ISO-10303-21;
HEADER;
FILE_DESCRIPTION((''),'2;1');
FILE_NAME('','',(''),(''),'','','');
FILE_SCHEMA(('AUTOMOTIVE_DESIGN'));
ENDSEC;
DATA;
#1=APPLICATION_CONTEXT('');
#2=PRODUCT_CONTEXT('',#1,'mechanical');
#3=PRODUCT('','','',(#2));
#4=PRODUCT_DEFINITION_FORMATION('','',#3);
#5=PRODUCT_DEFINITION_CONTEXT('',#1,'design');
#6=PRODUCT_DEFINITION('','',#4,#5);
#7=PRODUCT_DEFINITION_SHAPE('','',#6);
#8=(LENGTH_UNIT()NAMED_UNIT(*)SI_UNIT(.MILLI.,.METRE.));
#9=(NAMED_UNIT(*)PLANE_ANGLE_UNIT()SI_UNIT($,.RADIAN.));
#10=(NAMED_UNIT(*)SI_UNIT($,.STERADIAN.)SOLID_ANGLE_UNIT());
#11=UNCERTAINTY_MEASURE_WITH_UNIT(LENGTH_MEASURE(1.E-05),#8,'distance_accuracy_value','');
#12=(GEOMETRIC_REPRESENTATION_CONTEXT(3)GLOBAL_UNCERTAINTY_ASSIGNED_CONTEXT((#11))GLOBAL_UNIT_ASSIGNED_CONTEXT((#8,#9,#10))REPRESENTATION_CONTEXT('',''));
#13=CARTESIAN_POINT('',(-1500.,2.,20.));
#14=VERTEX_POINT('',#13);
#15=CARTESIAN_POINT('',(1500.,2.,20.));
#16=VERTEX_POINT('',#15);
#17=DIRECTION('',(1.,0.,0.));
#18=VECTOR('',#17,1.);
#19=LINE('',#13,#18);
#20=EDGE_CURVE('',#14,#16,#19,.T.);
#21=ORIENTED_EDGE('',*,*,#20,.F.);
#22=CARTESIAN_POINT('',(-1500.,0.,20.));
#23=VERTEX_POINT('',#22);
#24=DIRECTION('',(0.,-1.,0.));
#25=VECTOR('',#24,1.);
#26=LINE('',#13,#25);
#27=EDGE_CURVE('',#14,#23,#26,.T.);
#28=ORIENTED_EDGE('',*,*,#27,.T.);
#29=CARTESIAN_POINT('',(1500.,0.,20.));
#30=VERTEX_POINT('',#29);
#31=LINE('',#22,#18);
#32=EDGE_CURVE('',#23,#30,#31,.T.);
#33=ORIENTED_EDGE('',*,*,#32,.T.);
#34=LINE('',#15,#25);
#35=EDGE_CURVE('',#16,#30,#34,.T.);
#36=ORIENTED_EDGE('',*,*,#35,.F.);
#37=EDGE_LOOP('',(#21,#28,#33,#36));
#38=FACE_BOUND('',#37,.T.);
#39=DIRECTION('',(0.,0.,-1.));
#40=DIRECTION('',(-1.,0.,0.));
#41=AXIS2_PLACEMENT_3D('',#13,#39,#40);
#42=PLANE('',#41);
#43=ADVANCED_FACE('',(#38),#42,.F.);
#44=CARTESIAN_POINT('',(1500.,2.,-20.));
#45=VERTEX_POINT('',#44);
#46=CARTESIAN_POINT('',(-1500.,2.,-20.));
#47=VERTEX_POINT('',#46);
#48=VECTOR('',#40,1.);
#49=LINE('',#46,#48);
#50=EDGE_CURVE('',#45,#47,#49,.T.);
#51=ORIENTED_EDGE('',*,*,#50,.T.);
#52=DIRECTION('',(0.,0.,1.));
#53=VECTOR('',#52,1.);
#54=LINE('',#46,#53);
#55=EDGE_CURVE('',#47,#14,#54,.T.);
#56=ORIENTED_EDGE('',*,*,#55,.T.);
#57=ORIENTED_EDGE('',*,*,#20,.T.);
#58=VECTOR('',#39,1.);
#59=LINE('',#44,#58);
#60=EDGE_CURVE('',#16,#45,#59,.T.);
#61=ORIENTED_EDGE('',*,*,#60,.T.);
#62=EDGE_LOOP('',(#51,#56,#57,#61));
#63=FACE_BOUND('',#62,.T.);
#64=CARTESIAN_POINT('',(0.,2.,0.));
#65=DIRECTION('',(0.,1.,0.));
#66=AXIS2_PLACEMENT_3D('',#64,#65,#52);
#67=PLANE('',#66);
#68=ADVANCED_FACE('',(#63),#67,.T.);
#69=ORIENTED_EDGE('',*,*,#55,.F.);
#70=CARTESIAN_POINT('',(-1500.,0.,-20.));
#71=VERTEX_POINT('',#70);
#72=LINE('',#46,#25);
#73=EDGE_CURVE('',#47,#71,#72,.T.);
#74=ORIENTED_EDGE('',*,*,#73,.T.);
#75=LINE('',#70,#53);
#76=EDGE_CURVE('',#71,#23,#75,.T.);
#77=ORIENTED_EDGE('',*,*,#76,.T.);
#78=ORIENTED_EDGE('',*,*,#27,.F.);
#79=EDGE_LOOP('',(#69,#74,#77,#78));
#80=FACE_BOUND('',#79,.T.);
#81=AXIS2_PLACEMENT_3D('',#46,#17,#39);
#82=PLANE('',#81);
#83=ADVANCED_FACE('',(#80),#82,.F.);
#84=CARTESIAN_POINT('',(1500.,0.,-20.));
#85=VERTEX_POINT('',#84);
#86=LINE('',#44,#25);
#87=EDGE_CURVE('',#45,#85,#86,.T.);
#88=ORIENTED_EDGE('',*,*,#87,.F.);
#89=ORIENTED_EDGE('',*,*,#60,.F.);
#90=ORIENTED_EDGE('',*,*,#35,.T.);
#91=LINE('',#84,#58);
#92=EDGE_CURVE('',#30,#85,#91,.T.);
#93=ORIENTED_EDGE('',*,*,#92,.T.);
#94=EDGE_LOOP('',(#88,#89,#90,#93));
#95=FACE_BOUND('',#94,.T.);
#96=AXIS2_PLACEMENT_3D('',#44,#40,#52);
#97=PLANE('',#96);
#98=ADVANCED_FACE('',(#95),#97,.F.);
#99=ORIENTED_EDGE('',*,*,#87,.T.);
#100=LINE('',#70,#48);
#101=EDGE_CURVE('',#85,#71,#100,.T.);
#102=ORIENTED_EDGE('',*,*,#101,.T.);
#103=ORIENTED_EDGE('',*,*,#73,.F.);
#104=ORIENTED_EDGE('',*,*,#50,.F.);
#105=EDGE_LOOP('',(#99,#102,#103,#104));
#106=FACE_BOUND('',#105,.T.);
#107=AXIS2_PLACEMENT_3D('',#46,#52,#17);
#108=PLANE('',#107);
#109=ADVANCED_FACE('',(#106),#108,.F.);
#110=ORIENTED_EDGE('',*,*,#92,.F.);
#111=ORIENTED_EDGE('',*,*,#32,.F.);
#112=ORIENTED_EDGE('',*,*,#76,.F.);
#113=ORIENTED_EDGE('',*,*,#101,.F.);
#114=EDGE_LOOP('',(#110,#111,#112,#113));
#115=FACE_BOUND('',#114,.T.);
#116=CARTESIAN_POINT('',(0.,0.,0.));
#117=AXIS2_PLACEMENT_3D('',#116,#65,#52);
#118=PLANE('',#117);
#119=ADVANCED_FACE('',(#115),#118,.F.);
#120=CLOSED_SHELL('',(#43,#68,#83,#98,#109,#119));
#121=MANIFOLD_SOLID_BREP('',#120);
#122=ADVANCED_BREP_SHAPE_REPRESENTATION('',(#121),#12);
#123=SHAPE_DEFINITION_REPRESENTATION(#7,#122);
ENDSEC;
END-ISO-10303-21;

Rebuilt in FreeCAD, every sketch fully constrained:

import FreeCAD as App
import Part
import Sketcher
from FreeCAD import Vector


def add_polygon(sketch, points):
    """Adds a closed chain of lines whose ends are joined by coincident constraints."""
    first, n = sketch.GeometryCount, len(points)
    for a, b in zip(points, points[1:] + points[:1]):
        sketch.addGeometry(Part.LineSegment(App.Vector(*a, 0), App.Vector(*b, 0)), False)
    for i in range(n):
        sketch.addConstraint(Sketcher.Constraint("Coincident", first + i, 2, first + (i + 1) % n, 1))

doc = App.newDocument("Part")
body = doc.addObject("PartDesign::Body", "Body")

# Sketch on XZ plane
sketch1 = body.newObject("Sketcher::SketchObject", "Sketch")
sketch1.AttachmentSupport = (doc.getObject("XZ_Plane"), [""])
sketch1.MapMode = "FlatFace"
add_polygon(sketch1, [(-1500, -20), (-1500, 20), (1500, 20), (1500, -20)])  # lines 0-3
sketch1.addConstraint([
    Sketcher.Constraint("Vertical", 0),
    Sketcher.Constraint("Horizontal", 1),
    Sketcher.Constraint("Vertical", 2),
    Sketcher.Constraint("Horizontal", 3),
    Sketcher.Constraint("Symmetric", 0, 2, 2, 2, -1, 1),
    Sketcher.Constraint("DistanceX", 1, 1, 1, 2, 3000.0),
    Sketcher.Constraint("DistanceY", 0, 1, 0, 2, 40.0),
])
pad1 = body.newObject("PartDesign::Pad", "Pad")
pad1.Profile = sketch1
pad1.Length = 2
pad1.Reversed = True

doc.recompute()
